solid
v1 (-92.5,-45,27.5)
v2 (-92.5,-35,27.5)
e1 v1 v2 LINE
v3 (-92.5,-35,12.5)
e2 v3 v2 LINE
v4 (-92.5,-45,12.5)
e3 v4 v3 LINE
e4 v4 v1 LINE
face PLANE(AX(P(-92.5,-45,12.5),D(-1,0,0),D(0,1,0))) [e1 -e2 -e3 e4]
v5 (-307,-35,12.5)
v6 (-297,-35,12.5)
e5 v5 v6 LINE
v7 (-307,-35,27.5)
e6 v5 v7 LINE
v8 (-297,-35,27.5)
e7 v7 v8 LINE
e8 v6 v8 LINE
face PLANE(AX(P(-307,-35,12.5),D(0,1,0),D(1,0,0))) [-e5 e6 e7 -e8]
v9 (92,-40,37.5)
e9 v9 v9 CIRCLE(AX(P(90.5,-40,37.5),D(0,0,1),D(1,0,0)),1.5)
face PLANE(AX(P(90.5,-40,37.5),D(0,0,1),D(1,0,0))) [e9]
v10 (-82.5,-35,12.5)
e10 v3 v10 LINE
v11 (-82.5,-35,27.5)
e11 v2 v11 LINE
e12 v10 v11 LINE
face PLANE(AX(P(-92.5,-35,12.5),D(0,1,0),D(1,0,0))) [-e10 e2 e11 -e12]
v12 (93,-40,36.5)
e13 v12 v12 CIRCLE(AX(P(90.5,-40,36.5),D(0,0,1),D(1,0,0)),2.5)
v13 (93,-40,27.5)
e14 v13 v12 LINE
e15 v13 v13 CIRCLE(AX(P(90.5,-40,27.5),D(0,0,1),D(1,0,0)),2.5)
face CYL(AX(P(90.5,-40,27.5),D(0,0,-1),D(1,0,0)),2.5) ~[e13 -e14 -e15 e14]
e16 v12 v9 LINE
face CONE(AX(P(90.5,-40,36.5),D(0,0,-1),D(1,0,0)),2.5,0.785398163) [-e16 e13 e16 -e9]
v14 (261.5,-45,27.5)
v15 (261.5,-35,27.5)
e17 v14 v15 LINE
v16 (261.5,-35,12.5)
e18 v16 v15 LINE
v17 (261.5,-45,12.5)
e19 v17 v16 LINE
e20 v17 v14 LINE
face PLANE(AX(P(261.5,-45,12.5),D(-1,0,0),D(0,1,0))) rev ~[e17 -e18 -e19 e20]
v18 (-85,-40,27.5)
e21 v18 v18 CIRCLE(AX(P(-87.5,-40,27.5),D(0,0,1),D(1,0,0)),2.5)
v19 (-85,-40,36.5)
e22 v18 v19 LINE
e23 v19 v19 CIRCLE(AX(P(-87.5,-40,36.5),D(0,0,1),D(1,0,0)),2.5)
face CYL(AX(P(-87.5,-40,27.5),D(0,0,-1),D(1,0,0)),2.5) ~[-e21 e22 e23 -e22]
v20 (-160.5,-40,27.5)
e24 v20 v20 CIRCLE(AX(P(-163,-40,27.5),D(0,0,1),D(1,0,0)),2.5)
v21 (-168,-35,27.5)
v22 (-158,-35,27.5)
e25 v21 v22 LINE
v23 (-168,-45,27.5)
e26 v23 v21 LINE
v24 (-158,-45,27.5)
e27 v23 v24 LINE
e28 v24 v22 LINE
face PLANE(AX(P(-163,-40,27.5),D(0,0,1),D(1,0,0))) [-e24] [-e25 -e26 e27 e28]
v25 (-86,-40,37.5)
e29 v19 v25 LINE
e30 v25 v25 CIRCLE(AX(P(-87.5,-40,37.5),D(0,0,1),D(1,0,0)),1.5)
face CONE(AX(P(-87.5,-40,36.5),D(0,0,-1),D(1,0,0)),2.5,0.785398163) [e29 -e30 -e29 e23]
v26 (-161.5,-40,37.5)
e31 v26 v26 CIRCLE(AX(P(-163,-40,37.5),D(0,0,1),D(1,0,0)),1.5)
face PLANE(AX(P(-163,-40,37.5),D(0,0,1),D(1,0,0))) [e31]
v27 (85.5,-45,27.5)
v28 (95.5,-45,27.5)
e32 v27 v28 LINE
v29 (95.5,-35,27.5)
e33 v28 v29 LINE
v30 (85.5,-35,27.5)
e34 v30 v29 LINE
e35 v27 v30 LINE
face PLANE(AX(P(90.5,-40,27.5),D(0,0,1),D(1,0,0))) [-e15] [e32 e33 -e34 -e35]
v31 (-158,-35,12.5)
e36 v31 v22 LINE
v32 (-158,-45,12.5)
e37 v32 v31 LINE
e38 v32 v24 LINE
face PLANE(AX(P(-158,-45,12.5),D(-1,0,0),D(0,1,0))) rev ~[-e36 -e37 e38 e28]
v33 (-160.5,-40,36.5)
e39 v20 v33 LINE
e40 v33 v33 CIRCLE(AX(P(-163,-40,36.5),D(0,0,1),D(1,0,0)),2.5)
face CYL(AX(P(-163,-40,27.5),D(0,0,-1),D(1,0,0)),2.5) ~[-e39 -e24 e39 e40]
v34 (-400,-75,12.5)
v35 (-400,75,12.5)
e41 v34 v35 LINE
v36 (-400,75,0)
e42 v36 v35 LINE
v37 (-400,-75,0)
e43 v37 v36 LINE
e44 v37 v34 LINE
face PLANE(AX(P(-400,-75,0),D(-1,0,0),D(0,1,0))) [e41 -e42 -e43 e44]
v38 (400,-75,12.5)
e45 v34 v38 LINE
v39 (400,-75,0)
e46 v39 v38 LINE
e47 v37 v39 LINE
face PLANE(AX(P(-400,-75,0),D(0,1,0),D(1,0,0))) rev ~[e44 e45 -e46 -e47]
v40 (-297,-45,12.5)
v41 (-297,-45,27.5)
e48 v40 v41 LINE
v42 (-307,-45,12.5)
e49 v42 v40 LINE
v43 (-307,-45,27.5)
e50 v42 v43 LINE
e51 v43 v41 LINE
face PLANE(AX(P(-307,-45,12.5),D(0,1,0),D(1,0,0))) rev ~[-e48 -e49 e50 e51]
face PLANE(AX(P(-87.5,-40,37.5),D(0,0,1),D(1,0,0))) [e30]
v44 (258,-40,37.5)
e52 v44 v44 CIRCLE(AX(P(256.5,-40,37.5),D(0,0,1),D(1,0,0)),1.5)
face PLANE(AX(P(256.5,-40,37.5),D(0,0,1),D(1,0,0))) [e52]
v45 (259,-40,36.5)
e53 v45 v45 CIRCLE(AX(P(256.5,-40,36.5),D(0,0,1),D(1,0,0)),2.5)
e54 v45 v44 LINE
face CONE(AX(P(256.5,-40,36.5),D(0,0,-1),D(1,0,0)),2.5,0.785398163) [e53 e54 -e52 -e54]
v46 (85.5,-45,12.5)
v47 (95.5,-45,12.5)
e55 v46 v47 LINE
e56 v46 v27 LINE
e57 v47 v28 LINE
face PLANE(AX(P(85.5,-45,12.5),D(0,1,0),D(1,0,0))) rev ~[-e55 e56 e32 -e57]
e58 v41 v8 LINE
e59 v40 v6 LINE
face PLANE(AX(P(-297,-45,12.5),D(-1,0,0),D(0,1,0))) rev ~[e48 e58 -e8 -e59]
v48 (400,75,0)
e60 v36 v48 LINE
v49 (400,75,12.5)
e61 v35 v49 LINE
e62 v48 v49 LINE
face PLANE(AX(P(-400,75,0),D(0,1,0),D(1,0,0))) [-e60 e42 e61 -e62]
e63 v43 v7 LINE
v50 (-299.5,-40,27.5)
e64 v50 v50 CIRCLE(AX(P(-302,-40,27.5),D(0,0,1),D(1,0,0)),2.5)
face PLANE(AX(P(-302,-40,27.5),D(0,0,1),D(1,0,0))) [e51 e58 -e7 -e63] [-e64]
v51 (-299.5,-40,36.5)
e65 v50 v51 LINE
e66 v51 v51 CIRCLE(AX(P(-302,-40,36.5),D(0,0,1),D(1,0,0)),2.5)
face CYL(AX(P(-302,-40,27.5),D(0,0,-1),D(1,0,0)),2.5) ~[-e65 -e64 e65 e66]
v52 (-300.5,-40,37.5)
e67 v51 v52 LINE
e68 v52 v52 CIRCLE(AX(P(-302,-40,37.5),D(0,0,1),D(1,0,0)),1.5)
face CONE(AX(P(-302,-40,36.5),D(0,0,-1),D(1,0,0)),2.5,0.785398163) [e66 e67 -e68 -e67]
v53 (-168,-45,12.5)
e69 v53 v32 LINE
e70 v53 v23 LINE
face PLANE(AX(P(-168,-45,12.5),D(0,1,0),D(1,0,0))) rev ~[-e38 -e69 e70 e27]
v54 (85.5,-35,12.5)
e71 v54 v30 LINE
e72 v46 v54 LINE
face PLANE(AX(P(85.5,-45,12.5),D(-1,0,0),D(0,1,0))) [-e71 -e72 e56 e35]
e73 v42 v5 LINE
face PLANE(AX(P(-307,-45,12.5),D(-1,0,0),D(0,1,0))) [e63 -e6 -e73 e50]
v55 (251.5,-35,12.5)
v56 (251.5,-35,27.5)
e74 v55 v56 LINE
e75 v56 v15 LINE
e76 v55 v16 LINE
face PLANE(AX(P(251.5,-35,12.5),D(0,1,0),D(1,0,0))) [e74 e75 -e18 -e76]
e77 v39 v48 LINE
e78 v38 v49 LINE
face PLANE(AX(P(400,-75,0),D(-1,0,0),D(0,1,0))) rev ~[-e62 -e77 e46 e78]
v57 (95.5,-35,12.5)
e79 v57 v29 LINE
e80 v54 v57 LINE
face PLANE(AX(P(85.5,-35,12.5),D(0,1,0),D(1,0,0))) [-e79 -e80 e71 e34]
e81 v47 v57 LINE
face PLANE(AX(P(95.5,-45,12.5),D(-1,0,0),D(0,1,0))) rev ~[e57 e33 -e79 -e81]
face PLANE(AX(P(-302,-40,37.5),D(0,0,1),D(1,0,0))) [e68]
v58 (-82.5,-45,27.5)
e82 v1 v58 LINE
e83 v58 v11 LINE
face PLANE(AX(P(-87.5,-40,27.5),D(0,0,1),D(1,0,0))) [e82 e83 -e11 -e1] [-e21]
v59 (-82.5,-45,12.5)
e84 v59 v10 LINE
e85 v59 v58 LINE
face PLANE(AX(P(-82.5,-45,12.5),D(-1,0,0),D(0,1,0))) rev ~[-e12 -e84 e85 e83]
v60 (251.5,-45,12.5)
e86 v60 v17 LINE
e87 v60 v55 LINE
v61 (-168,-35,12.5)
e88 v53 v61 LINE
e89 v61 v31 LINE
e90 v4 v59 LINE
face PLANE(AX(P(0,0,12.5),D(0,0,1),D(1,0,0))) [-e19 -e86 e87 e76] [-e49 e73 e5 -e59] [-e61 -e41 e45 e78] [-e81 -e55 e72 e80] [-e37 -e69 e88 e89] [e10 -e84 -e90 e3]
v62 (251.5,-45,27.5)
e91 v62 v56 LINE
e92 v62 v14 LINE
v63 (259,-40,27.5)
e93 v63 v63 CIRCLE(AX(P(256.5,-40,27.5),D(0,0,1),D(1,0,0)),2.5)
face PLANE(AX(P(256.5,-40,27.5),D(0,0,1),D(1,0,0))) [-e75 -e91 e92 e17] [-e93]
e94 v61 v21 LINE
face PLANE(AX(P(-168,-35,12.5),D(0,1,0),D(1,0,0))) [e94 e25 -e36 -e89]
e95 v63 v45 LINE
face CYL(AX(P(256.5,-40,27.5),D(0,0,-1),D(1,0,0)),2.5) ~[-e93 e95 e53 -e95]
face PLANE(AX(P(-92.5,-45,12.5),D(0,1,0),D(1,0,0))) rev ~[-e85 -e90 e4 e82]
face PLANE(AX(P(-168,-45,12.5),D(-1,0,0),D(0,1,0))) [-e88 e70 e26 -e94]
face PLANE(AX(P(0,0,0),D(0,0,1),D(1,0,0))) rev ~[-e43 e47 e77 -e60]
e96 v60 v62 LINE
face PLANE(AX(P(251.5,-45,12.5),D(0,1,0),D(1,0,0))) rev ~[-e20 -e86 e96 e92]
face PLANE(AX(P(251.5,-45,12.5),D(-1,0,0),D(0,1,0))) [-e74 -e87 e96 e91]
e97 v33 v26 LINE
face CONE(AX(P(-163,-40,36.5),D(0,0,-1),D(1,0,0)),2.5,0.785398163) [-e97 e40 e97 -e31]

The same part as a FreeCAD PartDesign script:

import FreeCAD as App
import Part
import Sketcher
from FreeCAD import Vector
Q = App.Units.Quantity


def edges_at(feature, points):
    """Names of the edges that pass closest to the given points."""
    edges = feature.Shape.Edges
    near = lambda p: min(range(len(edges)), key=lambda i: edges[i].distToShape(Part.Vertex(*p))[0])
    return sorted({f"Edge{near(p) + 1}" for p in points})


def add_polygon(sketch, points):
    """Adds a closed chain of lines whose ends are joined by coincident constraints."""
    first, n = sketch.GeometryCount, len(points)
    for a, b in zip(points, points[1:] + points[:1]):
        sketch.addGeometry(Part.LineSegment(App.Vector(*a, 0), App.Vector(*b, 0)), False)
    for i in range(n):
        sketch.addConstraint(Sketcher.Constraint("Coincident", first + i, 2, first + (i + 1) % n, 1))

doc = App.newDocument("Part")
body = doc.addObject("PartDesign::Body", "Body")

sketch1 = doc.addObject("Sketcher::SketchObject", "Sketch")
body.addObject(sketch1)
sketch1.AttachmentSupport = (doc.XY_Plane, [""])
sketch1.MapMode = "FlatFace"
add_polygon(sketch1, [(-400, 75), (-400, -75), (400, -75), (400, 75)])
sketch1.addConstraint([
    Sketcher.Constraint("Vertical", 0),
    Sketcher.Constraint("Horizontal", 1),
    Sketcher.Constraint("Vertical", 2),
    Sketcher.Constraint("Horizontal", 3),
    Sketcher.Constraint("Symmetric", 0, 2, 2, 2, -1, 1),
    Sketcher.Constraint("DistanceX", 1, 1, 1, 2, Q("800 mm")),
    Sketcher.Constraint("DistanceY", 0, 2, 0, 1, Q("150 mm")),
])
pad1 = doc.addObject("PartDesign::Pad", "Pad")
body.addObject(pad1)
pad1.Profile = sketch1
pad1.Length = 12.5

sketch2 = doc.addObject("Sketcher::SketchObject", "Sketch001")
body.addObject(sketch2)
sketch2.AttachmentSupport = (doc.XY_Plane, [""])
sketch2.MapMode = "FlatFace"
sketch2.AttachmentOffset = App.Placement(Vector(0, 0, 12.5), App.Rotation())
add_polygon(sketch2, [(-307, -35), (-307, -45), (-297, -45), (-297, -35)])
add_polygon(sketch2, [(-168, -35), (-168, -45), (-158, -45), (-158, -35)])
add_polygon(sketch2, [(-92.5, -35), (-92.5, -45), (-82.5, -45), (-82.5, -35)])
add_polygon(sketch2, [(85.5, -35), (85.5, -45), (95.5, -45), (95.5, -35)])
add_polygon(sketch2, [(251.5, -35), (251.5, -45), (261.5, -45), (261.5, -35)])
sketch2.addConstraint([
    Sketcher.Constraint("Vertical", 0),
    Sketcher.Constraint("Horizontal", 1),
    Sketcher.Constraint("Vertical", 2),
    Sketcher.Constraint("Horizontal", 3),
    Sketcher.Constraint("Vertical", 4),
    Sketcher.Constraint("Horizontal", 5),
    Sketcher.Constraint("Vertical", 6),
    Sketcher.Constraint("Horizontal", 7),
    Sketcher.Constraint("Vertical", 8),
    Sketcher.Constraint("Horizontal", 9),
    Sketcher.Constraint("Vertical", 10),
    Sketcher.Constraint("Horizontal", 11),
    Sketcher.Constraint("Vertical", 12),
    Sketcher.Constraint("Horizontal", 13),
    Sketcher.Constraint("Vertical", 14),
    Sketcher.Constraint("Horizontal", 15),
    Sketcher.Constraint("Vertical", 16),
    Sketcher.Constraint("Horizontal", 17),
    Sketcher.Constraint("Vertical", 18),
    Sketcher.Constraint("Horizontal", 19),
    Sketcher.Constraint("Horizontal", 1, 2, 4, 2),
    Sketcher.Constraint("Horizontal", 3, 2, 6, 2),
    Sketcher.Constraint("Horizontal", 5, 2, 8, 2),
    Sketcher.Constraint("Horizontal", 7, 2, 10, 2),
    Sketcher.Constraint("Horizontal", 9, 2, 12, 2),
    Sketcher.Constraint("Horizontal", 11, 2, 14, 2),
    Sketcher.Constraint("Horizontal", 13, 2, 16, 2),
    Sketcher.Constraint("Horizontal", 15, 2, 18, 2),
    Sketcher.Constraint("Equal", 3, 5),
    Sketcher.Constraint("Equal", 7, 9),
    Sketcher.Constraint("Equal", 11, 13),
    Sketcher.Constraint("Equal", 15, 17),
    Sketcher.Constraint("Equal", 19, 0),
    Sketcher.Constraint("DistanceX", 1, 1, 1, 2, Q("10 mm")),
    Sketcher.Constraint("DistanceX", 0, 2, -1, 1, Q("307 mm")),
    Sketcher.Constraint("DistanceY", 0, 2, -1, 1, Q("45 mm")),
    Sketcher.Constraint("DistanceX", 4, 2, -1, 1, Q("168 mm")),
    Sketcher.Constraint("DistanceX", 9, 2, 12, 2, Q("168 mm")),
    Sketcher.Constraint("DistanceX", 13, 2, 16, 2, Q("156 mm")),
    Sketcher.Constraint("DistanceX", 8, 2, -1, 1, Q("92.5 mm")),
])
pad2 = doc.addObject("PartDesign::Pad", "Pad001")
body.addObject(pad2)
pad2.Profile = sketch2
pad2.Length = 15

sketch3 = doc.addObject("Sketcher::SketchObject", "Sketch002")
body.addObject(sketch3)
sketch3.AttachmentSupport = (doc.XY_Plane, [""])
sketch3.MapMode = "FlatFace"
sketch3.AttachmentOffset = App.Placement(Vector(0, 0, 27.5), App.Rotation())
sketch3.addGeometry(Part.Circle(Vector(-302, -40, 0), Vector(0, 0, 1), 2.5), False)
sketch3.addConstraint([
    Sketcher.Constraint("Diameter", 0, Q("5 mm")),
    Sketcher.Constraint("DistanceX", 0, 3, -1, 1, Q("302 mm")),
    Sketcher.Constraint("DistanceY", 0, 3, -1, 1, Q("40 mm")),
])
pad3 = doc.addObject("PartDesign::Pad", "Pad002")
body.addObject(pad3)
pad3.Profile = sketch3
pad3.Length = 10
doc.recompute()

chamfer = doc.addObject("PartDesign::Chamfer", "Chamfer")
body.addObject(chamfer)
chamfer.Base = (pad3, edges_at(pad3, [(-304.5, -40, 37.5)]))
chamfer.Size = 1

sketch4 = doc.addObject("Sketcher::SketchObject", "Sketch003")
body.addObject(sketch4)
sketch4.AttachmentSupport = (doc.XY_Plane, [""])
sketch4.MapMode = "FlatFace"
sketch4.AttachmentOffset = App.Placement(Vector(0, 0, 27.5), App.Rotation())
sketch4.addGeometry(Part.Circle(Vector(-163, -40, 0), Vector(0, 0, 1), 2.5), False)
sketch4.addConstraint([
    Sketcher.Constraint("Diameter", 0, Q("5 mm")),
    Sketcher.Constraint("DistanceX", 0, 3, -1, 1, Q("163 mm")),
    Sketcher.Constraint("DistanceY", 0, 3, -1, 1, Q("40 mm")),
])
pad4 = doc.addObject("PartDesign::Pad", "Pad003")
body.addObject(pad4)
pad4.Profile = sketch4
pad4.Length = 10

sketch5 = doc.addObject("Sketcher::SketchObject", "Sketch004")
body.addObject(sketch5)
sketch5.AttachmentSupport = (doc.XY_Plane, [""])
sketch5.MapMode = "FlatFace"
sketch5.AttachmentOffset = App.Placement(Vector(0, 0, 27.5), App.Rotation())
sketch5.addGeometry(Part.Circle(Vector(-87.5, -40, 0), Vector(0, 0, 1), 2.5), False)
sketch5.addConstraint([
    Sketcher.Constraint("Diameter", 0, Q("5 mm")),
    Sketcher.Constraint("DistanceY", 0, 3, -1, 1, Q("40 mm")),
    Sketcher.Constraint("DistanceX", 0, 3, -1, 1, Q("87.5 mm")),
])
pad5 = doc.addObject("PartDesign::Pad", "Pad004")
body.addObject(pad5)
pad5.Profile = sketch5
pad5.Length = 10

sketch6 = doc.addObject("Sketcher::SketchObject", "Sketch005")
body.addObject(sketch6)
sketch6.AttachmentSupport = (doc.XY_Plane, [""])
sketch6.MapMode = "FlatFace"
sketch6.AttachmentOffset = App.Placement(Vector(0, 0, 27.5), App.Rotation())
sketch6.addGeometry(Part.Circle(Vector(90.5, -40, 0), Vector(0, 0, 1), 2.5), False)
sketch6.addConstraint([
    Sketcher.Constraint("Diameter", 0, Q("5 mm")),
    Sketcher.Constraint("DistanceY", 0, 3, -1, 1, Q("40 mm")),
    Sketcher.Constraint("DistanceX", -1, 1, 0, 3, Q("90.5 mm")),
])
pad6 = doc.addObject("PartDesign::Pad", "Pad005")
body.addObject(pad6)
pad6.Profile = sketch6
pad6.Length = 10

sketch7 = doc.addObject("Sketcher::SketchObject", "Sketch006")
body.addObject(sketch7)
sketch7.AttachmentSupport = (doc.XY_Plane, [""])
sketch7.MapMode = "FlatFace"
sketch7.AttachmentOffset = App.Placement(Vector(0, 0, 27.5), App.Rotation())
sketch7.addGeometry(Part.Circle(Vector(256.5, -40, 0), Vector(0, 0, 1), 2.5), False)
sketch7.addConstraint([
    Sketcher.Constraint("Diameter", 0, Q("5 mm")),
    Sketcher.Constraint("DistanceY", 0, 3, -1, 1, Q("40 mm")),
    Sketcher.Constraint("DistanceX", -1, 1, 0, 3, Q("256.5 mm")),
])
pad7 = doc.addObject("PartDesign::Pad", "Pad006")
body.addObject(pad7)
pad7.Profile = sketch7
pad7.Length = 10
doc.recompute()

chamfer2 = doc.addObject("PartDesign::Chamfer", "Chamfer001")
body.addObject(chamfer2)
chamfer2.Base = (pad7, edges_at(pad7, [
    (254, -40, 37.5),
    (88, -40, 37.5),
    (-90, -40, 37.5),
    (-165.5, -40, 37.5),
]))
chamfer2.Size = 1

doc.recompute()
